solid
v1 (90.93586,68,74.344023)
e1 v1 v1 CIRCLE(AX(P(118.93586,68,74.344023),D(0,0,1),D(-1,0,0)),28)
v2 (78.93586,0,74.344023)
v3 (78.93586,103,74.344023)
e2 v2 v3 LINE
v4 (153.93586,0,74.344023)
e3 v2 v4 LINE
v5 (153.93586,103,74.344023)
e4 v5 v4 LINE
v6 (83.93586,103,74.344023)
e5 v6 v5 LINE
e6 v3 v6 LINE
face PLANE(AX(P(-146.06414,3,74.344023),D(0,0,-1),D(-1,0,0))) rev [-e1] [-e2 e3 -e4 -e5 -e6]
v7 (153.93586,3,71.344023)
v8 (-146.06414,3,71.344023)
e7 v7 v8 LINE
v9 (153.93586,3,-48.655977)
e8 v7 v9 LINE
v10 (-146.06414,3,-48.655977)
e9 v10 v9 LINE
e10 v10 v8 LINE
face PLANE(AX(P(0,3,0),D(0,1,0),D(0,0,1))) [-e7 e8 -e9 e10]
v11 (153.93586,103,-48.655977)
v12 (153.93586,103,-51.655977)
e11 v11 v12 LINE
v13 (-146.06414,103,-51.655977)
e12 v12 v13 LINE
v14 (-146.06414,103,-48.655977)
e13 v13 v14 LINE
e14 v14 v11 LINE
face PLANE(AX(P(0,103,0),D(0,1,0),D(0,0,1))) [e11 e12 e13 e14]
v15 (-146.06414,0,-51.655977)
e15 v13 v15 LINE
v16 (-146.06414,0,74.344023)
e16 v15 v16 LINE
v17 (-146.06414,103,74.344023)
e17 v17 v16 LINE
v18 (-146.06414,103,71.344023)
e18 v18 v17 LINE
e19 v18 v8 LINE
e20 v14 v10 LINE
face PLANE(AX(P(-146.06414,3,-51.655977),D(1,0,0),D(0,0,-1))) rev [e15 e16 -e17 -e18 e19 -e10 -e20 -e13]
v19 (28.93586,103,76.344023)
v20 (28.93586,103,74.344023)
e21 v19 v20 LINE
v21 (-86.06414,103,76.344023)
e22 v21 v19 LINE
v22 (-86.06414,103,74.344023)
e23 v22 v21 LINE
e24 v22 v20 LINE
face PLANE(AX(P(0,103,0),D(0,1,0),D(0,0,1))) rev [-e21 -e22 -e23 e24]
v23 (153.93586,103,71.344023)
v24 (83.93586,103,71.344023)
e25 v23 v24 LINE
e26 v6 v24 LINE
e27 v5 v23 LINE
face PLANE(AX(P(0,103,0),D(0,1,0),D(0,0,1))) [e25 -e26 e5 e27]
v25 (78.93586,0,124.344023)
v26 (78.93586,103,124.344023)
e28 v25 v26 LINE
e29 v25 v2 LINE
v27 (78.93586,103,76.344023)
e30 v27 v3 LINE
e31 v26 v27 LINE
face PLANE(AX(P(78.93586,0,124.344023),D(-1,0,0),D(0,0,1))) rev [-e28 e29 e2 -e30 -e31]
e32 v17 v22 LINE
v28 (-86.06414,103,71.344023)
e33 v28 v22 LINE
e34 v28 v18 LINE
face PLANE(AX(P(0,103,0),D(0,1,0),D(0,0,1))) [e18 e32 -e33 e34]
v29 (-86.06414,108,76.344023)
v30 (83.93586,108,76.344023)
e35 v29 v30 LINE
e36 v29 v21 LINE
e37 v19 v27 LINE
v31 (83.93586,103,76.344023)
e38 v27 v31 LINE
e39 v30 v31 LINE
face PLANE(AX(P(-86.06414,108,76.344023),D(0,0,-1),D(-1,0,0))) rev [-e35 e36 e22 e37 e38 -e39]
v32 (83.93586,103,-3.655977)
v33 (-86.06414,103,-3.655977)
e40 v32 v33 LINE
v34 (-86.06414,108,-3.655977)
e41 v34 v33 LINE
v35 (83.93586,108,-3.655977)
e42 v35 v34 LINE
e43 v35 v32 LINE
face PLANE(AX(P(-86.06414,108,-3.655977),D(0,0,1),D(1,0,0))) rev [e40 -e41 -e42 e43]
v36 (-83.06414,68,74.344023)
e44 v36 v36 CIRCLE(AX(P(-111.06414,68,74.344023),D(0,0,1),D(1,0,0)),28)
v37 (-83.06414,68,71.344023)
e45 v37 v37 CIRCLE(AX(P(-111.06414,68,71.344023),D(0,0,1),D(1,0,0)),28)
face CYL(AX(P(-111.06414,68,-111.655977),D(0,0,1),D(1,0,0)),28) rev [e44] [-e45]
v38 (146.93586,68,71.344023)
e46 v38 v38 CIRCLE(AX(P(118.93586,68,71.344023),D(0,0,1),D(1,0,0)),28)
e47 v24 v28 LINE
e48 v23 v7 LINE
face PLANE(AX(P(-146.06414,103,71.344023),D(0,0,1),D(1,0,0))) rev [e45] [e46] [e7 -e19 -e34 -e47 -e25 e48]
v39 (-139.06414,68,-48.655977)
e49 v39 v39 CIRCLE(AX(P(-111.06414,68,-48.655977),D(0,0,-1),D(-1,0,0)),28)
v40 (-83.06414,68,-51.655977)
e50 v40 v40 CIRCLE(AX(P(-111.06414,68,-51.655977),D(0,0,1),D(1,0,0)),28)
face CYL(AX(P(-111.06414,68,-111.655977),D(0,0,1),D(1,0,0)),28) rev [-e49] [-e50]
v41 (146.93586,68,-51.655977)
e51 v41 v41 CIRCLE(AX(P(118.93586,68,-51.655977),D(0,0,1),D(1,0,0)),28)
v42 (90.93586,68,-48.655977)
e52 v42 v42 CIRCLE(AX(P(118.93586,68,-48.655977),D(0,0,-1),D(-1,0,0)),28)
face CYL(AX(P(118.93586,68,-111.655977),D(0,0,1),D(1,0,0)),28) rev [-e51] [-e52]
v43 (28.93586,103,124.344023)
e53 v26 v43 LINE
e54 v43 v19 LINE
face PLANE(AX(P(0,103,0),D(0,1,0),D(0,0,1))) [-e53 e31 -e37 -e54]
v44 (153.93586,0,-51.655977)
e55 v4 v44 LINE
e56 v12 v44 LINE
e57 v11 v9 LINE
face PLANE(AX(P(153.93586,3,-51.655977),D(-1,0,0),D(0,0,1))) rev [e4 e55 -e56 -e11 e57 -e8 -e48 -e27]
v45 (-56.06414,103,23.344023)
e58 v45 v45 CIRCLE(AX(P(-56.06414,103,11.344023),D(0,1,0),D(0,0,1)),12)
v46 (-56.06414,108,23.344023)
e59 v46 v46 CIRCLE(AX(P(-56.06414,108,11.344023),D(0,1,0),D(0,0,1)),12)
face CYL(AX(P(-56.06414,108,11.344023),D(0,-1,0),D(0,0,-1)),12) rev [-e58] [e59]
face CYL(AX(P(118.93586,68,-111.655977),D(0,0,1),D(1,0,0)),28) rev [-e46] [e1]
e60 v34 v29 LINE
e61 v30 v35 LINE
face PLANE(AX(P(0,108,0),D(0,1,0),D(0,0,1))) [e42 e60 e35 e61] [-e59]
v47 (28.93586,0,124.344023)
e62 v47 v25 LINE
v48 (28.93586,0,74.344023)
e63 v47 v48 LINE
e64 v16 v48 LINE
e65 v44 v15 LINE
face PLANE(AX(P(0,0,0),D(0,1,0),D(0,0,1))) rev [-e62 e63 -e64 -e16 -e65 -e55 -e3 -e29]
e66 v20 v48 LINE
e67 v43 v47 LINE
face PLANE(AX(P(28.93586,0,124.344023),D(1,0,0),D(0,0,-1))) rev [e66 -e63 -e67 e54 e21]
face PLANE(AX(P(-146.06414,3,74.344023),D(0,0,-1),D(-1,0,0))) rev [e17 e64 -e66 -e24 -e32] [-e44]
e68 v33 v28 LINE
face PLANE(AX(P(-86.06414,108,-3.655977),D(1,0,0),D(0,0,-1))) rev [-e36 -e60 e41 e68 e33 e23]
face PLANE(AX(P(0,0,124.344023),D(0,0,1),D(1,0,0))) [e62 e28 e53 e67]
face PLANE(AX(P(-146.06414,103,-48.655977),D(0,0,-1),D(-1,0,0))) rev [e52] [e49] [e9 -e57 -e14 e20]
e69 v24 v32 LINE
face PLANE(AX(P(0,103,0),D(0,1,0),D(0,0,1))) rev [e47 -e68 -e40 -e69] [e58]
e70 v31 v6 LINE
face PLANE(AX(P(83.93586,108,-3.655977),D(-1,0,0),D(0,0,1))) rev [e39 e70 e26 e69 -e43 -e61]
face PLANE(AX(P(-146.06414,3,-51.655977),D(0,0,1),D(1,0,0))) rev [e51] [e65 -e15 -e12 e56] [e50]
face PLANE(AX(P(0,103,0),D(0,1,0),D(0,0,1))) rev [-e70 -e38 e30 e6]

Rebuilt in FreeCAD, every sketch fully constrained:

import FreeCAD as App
import Part
import Sketcher

V = App.Vector
Q = App.Units.Quantity


def add_polygon(sketch, points):
    """Adds a closed chain of lines whose ends are joined by coincident constraints."""
    first, n = sketch.GeometryCount, len(points)
    for a, b in zip(points, points[1:] + points[:1]):
        sketch.addGeometry(Part.LineSegment(App.Vector(*a, 0), App.Vector(*b, 0)), False)
    for i in range(n):
        sketch.addConstraint(Sketcher.Constraint("Coincident", first + i, 2, first + (i + 1) % n, 1))

doc = App.newDocument("Part")
body = doc.addObject("PartDesign::Body", "Body")

# Sketch on XZ plane
sketch1 = body.newObject("Sketcher::SketchObject", "Sketch")
sketch1.AttachmentSupport = (doc.getObject("XZ_Plane"), [""])
sketch1.MapMode = "FlatFace"
add_polygon(sketch1, [(-146, -52), (-146, 74), (154, 74), (154, -52)])  # lines 0-3
sketch1.addConstraint(Sketcher.Constraint("Vertical", 0))
sketch1.addConstraint(Sketcher.Constraint("Horizontal", 1))
sketch1.addConstraint(Sketcher.Constraint("Vertical", 2))
sketch1.addConstraint(Sketcher.Constraint("Horizontal", 3))
sketch1.addConstraint(Sketcher.Constraint("DistanceX", 1, 1, 1, 2, Q("300 mm")))
sketch1.addConstraint(Sketcher.Constraint("DistanceY", 0, 1, 0, 2, Q("126 mm")))
sketch1.addConstraint(Sketcher.Constraint("DistanceX", 0, 2, -1, 1, Q("146.06414 mm")))
sketch1.addConstraint(Sketcher.Constraint("DistanceY", -1, 1, 0, 2, Q("74.344023 mm")))
pad1 = body.newObject("PartDesign::Pad", "Pad")
pad1.Profile = sketch1
pad1.Length = 3
pad1.Reversed = True

# Sketch on XZ plane
sketch2 = body.newObject("Sketcher::SketchObject", "Sketch001")
sketch2.AttachmentSupport = (doc.getObject("XZ_Plane"), [""])
sketch2.MapMode = "FlatFace"
sketch2.AttachmentOffset = App.Placement(V(0, 0, -3), App.Rotation())
add_polygon(sketch2, [(-146.1, 71.3), (-146.1, 74.3), (153.9, 74.3), (153.9, 71.3)])  # lines 0-3
add_polygon(sketch2, [(-146.1, -51.7), (-146.1, -48.7), (153.9, -48.7), (153.9, -51.7)])  # lines 4-7
sketch2.addConstraint(Sketcher.Constraint("Vertical", 0))
sketch2.addConstraint(Sketcher.Constraint("Horizontal", 1))
sketch2.addConstraint(Sketcher.Constraint("Vertical", 2))
sketch2.addConstraint(Sketcher.Constraint("Horizontal", 3))
sketch2.addConstraint(Sketcher.Constraint("Vertical", 4))
sketch2.addConstraint(Sketcher.Constraint("Horizontal", 5))
sketch2.addConstraint(Sketcher.Constraint("Vertical", 6))
sketch2.addConstraint(Sketcher.Constraint("Horizontal", 7))
sketch2.addConstraint(Sketcher.Constraint("Vertical", 3, 2, 4, 2))
sketch2.addConstraint(Sketcher.Constraint("Vertical", 2, 2, 5, 2))
sketch2.addConstraint(Sketcher.Constraint("Equal", 2, 4))
sketch2.addConstraint(Sketcher.Constraint("DistanceX", 1, 1, 1, 2, Q("300 mm")))
sketch2.addConstraint(Sketcher.Constraint("DistanceY", 0, 1, 0, 2, Q("3 mm")))
sketch2.addConstraint(Sketcher.Constraint("DistanceY", 4, 2, 3, 2, Q("120 mm")))
sketch2.addConstraint(Sketcher.Constraint("DistanceX", 0, 2, -1, 1, Q("146.06414 mm")))
sketch2.addConstraint(Sketcher.Constraint("DistanceY", -1, 1, 0, 2, Q("74.344023 mm")))
pad2 = body.newObject("PartDesign::Pad", "Pad001")
pad2.Profile = sketch2
pad2.Length = 100
pad2.Reversed = True

# Sketch on XY plane
sketch3 = body.newObject("Sketcher::SketchObject", "Sketch002")
sketch3.AttachmentSupport = (doc.getObject("XY_Plane"), [""])
sketch3.MapMode = "FlatFace"
sketch3.AttachmentOffset = App.Placement(V(0, 0, 74.344023), App.Rotation())
sketch3.addGeometry(Part.Circle(V(-111, 68, 0), V(0, 0, 1), 28), False)
sketch3.addGeometry(Part.Circle(V(119, 68, 0), V(0, 0, 1), 28), False)
sketch3.addConstraint(Sketcher.Constraint("Equal", 0, 1))
sketch3.addConstraint(Sketcher.Constraint("Horizontal", 0, 3, 1, 3))
sketch3.addConstraint(Sketcher.Constraint("Diameter", 0, Q("56 mm")))
sketch3.addConstraint(Sketcher.Constraint("DistanceY", -1, 1, 0, 3, Q("68 mm")))
sketch3.addConstraint(Sketcher.Constraint("DistanceX", 0, 3, 1, 3, Q("230 mm")))
sketch3.addConstraint(Sketcher.Constraint("DistanceX", 0, 3, -1, 1, Q("111.06414 mm")))
pocket1 = body.newObject("PartDesign::Pocket", "Pocket")
pocket1.Profile = sketch3
pocket1.Length = 186

# Sketch on XY plane
sketch4 = body.newObject("Sketcher::SketchObject", "Sketch003")
sketch4.AttachmentSupport = (doc.getObject("XY_Plane"), [""])
sketch4.MapMode = "FlatFace"
sketch4.AttachmentOffset = App.Placement(V(0, 0, 74.344023), App.Rotation())
add_polygon(sketch4, [(29, 103), (29, 0), (79, 0), (79, 103)])  # lines 0-3
sketch4.addConstraint(Sketcher.Constraint("Vertical", 0))
sketch4.addConstraint(Sketcher.Constraint("Horizontal", 1))
sketch4.addConstraint(Sketcher.Constraint("Vertical", 2))
sketch4.addConstraint(Sketcher.Constraint("Horizontal", 3))
sketch4.addConstraint(Sketcher.Constraint("PointOnObject", 0, 2, -1))
sketch4.addConstraint(Sketcher.Constraint("DistanceX", 1, 1, 1, 2, Q("50 mm")))
sketch4.addConstraint(Sketcher.Constraint("DistanceY", 0, 2, 0, 1, Q("103 mm")))
sketch4.addConstraint(Sketcher.Constraint("DistanceX", -1, 1, 0, 2, Q("28.93586 mm")))
pad3 = body.newObject("PartDesign::Pad", "Pad002")
pad3.Profile = sketch4
pad3.Length = 50

# Sketch on XZ plane
sketch5 = body.newObject("Sketcher::SketchObject", "Sketch004")
sketch5.AttachmentSupport = (doc.getObject("XZ_Plane"), [""])
sketch5.MapMode = "FlatFace"
sketch5.AttachmentOffset = App.Placement(V(0, 0, -103), App.Rotation())
add_polygon(sketch5, [(-86, -4), (-86, 76), (84, 76), (84, -4)])  # lines 0-3
sketch5.addGeometry(Part.Circle(V(-56, 11, 0), V(0, 0, 1), 12), False)  # 4
sketch5.addConstraint(Sketcher.Constraint("Vertical", 0))
sketch5.addConstraint(Sketcher.Constraint("Horizontal", 1))
sketch5.addConstraint(Sketcher.Constraint("Vertical", 2))
sketch5.addConstraint(Sketcher.Constraint("Horizontal", 3))
sketch5.addConstraint(Sketcher.Constraint("Diameter", 4, Q("24 mm")))
sketch5.addConstraint(Sketcher.Constraint("DistanceX", 1, 1, 1, 2, Q("170 mm")))
sketch5.addConstraint(Sketcher.Constraint("DistanceY", 0, 1, 0, 2, Q("80 mm")))
sketch5.addConstraint(Sketcher.Constraint("DistanceX", 0, 2, 4, 3, Q("30 mm")))
sketch5.addConstraint(Sketcher.Constraint("DistanceY", 4, 3, 0, 2, Q("65 mm")))
sketch5.addConstraint(Sketcher.Constraint("DistanceX", 4, 3, -1, 1, Q("56.06414 mm")))
sketch5.addConstraint(Sketcher.Constraint("DistanceY", -1, 1, 4, 3, Q("11.344023 mm")))
pad4 = body.newObject("PartDesign::Pad", "Pad003")
pad4.Profile = sketch5
pad4.Length = 5
pad4.Reversed = True

doc.recompute()
